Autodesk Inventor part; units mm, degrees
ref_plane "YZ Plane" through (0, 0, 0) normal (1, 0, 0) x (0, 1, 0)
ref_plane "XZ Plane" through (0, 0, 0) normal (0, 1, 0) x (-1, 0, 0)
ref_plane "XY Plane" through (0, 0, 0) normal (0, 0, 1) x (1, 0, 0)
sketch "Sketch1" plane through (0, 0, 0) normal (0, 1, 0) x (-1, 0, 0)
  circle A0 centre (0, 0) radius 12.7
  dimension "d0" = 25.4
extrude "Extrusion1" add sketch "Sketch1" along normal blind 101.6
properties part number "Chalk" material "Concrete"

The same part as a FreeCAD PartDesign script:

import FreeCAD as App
import Part
import Sketcher
Q = App.Units.Quantity

doc = App.newDocument("Part")
body = doc.addObject("PartDesign::Body", "Body")

# Sketch on XZ plane
sketch1 = body.newObject("Sketcher::SketchObject", "Sketch")
sketch1.AttachmentSupport = (doc.getObject("XZ_Plane"), [""])
sketch1.MapMode = "FlatFace"
sketch1.addGeometry(Part.Circle(App.Vector(0, 0, 0), App.Vector(0, 0, 1), 13), False)
sketch1.addConstraint([
    Sketcher.Constraint("Coincident", 0, 3, -1, 1),
    Sketcher.Constraint("Diameter", 0, Q("1 in")),
])
pad1 = body.newObject("PartDesign::Pad", "Pad")
pad1.Profile = sketch1
pad1.Length = Q("4 in")
pad1.Reversed = True

doc.recompute()
